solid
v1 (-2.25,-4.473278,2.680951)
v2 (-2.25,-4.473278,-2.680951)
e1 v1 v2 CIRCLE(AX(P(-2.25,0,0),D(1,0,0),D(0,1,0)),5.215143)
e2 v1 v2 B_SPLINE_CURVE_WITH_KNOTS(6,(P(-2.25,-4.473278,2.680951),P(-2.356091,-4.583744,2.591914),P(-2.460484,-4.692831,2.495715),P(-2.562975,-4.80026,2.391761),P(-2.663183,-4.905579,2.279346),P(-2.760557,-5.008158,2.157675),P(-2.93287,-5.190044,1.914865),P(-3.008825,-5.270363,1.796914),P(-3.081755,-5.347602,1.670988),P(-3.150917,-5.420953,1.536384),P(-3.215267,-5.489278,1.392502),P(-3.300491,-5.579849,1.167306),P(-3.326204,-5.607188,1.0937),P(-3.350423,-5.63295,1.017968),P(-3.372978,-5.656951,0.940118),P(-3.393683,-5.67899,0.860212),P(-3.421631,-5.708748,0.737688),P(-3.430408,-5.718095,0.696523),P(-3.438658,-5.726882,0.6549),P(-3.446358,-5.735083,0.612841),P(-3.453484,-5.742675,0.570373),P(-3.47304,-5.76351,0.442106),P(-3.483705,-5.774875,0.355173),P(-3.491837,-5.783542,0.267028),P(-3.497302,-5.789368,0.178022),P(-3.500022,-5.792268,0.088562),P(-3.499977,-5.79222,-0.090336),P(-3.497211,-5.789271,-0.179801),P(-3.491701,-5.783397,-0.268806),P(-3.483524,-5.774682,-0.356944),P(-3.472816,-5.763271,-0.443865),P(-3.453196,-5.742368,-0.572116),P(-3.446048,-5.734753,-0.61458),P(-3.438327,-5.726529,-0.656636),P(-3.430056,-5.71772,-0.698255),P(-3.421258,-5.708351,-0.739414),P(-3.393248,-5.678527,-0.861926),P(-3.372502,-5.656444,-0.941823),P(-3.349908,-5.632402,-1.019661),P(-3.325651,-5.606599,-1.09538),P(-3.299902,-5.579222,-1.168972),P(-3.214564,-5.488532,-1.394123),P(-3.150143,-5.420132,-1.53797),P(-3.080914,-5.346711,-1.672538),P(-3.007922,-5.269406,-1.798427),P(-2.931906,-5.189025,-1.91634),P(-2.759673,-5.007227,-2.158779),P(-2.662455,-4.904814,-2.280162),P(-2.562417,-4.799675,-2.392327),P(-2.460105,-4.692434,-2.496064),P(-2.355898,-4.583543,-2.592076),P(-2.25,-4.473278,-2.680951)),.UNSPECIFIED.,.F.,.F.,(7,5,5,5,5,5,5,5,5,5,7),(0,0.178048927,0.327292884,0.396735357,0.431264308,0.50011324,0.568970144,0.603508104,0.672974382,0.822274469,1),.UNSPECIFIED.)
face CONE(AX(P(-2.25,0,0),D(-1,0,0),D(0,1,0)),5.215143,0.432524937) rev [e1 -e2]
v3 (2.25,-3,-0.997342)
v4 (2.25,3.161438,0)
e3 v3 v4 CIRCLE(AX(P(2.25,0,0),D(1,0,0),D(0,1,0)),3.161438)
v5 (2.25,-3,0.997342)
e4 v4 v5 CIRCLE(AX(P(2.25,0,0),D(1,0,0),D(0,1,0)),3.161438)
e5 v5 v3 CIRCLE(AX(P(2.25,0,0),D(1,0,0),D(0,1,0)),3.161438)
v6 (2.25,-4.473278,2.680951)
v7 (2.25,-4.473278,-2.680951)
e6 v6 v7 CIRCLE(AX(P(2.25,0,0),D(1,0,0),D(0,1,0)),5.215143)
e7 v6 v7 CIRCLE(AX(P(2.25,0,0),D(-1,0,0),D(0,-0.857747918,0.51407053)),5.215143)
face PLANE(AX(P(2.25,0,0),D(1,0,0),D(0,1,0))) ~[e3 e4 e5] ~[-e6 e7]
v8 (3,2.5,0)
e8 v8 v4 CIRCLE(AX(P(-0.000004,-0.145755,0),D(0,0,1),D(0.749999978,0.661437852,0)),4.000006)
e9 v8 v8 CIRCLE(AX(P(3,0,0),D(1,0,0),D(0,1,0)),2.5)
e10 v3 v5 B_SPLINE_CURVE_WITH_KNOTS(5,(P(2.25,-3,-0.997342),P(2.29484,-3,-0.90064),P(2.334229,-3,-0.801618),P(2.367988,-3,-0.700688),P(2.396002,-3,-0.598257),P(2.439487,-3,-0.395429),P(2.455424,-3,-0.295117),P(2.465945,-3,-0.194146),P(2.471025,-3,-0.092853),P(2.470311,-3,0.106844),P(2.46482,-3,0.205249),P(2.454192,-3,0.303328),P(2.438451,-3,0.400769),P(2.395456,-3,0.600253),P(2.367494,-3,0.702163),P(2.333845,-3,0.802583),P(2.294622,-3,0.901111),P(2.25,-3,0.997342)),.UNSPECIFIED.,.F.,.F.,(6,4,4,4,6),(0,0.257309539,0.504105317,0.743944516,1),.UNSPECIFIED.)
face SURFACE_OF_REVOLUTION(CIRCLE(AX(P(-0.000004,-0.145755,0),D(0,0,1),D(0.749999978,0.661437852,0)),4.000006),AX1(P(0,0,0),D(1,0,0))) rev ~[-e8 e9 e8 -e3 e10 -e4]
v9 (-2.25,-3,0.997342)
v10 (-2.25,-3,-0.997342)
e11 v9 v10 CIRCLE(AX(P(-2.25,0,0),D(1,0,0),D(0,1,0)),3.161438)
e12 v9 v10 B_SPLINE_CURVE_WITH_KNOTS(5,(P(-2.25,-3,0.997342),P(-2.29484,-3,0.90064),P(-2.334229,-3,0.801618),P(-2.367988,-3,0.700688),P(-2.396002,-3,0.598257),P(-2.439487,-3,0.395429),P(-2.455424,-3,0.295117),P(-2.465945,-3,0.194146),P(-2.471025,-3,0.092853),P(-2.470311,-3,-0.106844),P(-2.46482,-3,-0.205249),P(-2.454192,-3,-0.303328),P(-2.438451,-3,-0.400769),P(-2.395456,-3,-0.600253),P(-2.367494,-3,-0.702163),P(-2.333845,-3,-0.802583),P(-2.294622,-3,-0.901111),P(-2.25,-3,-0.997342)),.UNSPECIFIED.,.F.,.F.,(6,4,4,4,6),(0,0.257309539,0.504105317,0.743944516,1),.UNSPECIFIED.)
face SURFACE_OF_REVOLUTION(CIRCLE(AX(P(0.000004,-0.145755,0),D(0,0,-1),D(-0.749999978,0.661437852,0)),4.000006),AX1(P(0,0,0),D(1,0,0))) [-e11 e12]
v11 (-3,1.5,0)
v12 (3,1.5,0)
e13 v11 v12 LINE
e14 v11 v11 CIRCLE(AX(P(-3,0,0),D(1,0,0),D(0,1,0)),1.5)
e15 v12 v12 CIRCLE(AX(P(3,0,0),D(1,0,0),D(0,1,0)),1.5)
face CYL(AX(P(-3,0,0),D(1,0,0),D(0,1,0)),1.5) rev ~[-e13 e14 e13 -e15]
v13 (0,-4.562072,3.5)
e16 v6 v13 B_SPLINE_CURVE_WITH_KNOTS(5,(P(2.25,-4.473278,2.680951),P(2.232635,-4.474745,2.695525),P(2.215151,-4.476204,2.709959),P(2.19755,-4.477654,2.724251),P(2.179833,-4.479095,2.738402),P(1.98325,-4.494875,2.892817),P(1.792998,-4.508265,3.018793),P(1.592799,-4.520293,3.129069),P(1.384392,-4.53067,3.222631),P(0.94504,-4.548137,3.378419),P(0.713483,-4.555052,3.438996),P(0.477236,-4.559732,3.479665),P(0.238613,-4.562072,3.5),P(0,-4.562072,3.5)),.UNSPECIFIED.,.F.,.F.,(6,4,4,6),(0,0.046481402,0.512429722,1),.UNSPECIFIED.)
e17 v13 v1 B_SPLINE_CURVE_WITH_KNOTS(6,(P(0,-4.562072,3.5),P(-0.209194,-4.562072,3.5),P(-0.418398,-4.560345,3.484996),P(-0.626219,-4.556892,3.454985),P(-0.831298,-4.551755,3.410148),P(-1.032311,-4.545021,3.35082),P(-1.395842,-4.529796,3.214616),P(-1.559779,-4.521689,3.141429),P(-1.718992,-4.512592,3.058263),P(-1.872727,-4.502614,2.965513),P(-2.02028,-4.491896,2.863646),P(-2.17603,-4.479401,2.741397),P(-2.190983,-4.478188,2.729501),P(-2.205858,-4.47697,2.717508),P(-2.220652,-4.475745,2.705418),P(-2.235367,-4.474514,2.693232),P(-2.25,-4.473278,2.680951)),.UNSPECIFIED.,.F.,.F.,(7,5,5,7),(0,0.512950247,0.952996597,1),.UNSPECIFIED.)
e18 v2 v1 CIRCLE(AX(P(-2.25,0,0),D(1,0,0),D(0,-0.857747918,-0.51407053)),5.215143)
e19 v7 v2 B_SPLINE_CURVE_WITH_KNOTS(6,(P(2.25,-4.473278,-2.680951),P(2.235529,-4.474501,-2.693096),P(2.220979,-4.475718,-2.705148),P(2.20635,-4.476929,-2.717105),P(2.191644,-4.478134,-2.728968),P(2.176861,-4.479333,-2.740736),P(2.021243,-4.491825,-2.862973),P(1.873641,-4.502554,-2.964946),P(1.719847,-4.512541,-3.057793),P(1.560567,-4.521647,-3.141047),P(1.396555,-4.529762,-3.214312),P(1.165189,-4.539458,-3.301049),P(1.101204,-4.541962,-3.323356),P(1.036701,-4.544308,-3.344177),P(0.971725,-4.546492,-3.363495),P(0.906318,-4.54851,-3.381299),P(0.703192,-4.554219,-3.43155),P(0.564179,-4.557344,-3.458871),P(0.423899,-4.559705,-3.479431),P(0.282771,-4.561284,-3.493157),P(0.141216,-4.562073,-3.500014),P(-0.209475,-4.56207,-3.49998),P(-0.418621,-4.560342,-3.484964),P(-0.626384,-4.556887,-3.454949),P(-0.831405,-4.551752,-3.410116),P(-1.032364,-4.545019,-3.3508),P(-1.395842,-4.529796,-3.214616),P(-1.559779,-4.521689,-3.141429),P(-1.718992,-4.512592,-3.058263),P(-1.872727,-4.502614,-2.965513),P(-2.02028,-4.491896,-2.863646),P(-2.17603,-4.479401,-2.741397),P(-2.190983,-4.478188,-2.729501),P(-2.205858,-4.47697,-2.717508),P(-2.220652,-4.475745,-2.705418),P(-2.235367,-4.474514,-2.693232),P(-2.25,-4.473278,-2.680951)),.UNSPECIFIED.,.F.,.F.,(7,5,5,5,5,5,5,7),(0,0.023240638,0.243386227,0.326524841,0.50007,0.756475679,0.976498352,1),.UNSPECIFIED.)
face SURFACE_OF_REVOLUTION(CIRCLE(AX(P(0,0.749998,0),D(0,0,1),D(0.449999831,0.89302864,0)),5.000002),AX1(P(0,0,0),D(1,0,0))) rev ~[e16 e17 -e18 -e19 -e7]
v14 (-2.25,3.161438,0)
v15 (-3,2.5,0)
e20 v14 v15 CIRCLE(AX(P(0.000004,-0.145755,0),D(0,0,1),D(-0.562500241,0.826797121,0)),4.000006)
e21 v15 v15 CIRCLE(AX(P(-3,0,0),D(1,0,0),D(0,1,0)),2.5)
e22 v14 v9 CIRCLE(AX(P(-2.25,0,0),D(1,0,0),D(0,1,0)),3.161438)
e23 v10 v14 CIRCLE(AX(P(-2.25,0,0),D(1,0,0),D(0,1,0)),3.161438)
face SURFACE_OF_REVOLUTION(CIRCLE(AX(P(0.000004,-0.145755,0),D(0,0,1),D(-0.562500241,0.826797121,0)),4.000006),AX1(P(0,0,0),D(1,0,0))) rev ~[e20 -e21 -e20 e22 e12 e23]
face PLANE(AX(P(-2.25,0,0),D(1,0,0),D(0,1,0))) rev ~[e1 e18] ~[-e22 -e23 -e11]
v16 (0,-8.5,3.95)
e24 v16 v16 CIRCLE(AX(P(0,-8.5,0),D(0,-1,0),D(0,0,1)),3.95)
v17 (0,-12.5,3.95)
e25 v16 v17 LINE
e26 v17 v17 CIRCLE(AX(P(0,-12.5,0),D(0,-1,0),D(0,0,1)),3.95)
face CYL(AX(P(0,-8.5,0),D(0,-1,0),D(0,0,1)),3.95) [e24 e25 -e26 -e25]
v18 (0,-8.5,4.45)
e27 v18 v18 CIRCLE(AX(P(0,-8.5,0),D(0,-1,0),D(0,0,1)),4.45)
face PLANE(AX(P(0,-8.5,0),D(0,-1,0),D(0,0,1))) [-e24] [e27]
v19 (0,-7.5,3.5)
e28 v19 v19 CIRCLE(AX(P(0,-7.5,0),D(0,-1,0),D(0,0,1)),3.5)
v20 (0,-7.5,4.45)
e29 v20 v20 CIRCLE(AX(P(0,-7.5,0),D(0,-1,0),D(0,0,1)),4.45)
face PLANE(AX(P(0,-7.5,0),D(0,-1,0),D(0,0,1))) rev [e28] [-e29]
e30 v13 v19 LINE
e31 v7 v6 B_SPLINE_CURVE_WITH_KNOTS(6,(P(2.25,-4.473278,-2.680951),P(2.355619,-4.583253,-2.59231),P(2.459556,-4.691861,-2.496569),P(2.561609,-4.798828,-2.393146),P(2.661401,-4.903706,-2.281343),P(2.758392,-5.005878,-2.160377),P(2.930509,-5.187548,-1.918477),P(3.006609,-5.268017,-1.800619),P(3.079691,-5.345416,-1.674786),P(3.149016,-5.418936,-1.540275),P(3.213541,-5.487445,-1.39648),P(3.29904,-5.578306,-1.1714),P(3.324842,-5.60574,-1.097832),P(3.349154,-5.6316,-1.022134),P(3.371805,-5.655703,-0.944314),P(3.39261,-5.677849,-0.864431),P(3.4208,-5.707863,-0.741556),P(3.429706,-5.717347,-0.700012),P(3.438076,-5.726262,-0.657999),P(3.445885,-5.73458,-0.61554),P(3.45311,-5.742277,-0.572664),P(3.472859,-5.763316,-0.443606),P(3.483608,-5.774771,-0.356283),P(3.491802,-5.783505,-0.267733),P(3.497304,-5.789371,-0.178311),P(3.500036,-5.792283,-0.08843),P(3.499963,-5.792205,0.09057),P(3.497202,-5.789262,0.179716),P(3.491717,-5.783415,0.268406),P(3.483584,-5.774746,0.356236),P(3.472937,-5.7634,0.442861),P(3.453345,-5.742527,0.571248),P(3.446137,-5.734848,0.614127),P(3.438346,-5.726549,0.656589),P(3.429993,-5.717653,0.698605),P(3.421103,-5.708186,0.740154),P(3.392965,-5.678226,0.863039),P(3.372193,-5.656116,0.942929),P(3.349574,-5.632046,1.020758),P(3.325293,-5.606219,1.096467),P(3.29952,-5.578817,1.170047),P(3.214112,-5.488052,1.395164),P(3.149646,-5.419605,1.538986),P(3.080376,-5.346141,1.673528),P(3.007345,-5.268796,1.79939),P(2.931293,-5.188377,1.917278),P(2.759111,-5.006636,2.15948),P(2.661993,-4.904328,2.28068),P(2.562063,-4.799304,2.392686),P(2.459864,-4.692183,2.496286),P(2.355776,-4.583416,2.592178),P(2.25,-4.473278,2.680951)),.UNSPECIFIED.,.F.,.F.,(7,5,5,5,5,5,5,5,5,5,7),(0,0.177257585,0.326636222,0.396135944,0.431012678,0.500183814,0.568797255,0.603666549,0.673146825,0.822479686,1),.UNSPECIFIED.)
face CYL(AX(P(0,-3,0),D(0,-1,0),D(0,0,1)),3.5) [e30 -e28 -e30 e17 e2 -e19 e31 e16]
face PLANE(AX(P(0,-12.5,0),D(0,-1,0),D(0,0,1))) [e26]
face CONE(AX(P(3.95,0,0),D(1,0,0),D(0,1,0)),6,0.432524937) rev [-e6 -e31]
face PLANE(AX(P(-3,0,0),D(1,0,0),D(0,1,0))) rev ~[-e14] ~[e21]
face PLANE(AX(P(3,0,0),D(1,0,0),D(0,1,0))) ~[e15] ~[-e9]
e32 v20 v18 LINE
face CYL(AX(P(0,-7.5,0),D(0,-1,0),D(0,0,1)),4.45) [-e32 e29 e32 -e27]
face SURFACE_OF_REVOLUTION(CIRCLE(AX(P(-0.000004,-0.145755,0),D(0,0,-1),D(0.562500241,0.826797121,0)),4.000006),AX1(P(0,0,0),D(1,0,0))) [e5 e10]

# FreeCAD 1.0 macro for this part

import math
import FreeCAD as App
import Part
import Sketcher

doc = App.newDocument("Part")
body = doc.addObject("PartDesign::Body", "Body")

sketch1 = doc.addObject("Sketcher::SketchObject", "Sketch")
body.addObject(sketch1)
sketch1.AttachmentSupport = (doc.XY_Plane, [""])
sketch1.MapMode = "FlatFace"
sketch1.addGeometry(Part.LineSegment(App.Vector(-3, 2.5, 0), App.Vector(-3, 1.5, 0)), False)
sketch1.addGeometry(Part.LineSegment(App.Vector(-3, 1.5, 0), App.Vector(3, 1.5, 0)), False)
sketch1.addGeometry(Part.LineSegment(App.Vector(3, 1.5, 0), App.Vector(3, 2.5, 0)), False)
sketch1.addGeometry(Part.ArcOfCircle(Part.Circle(App.Vector(-0.000004, -0.145755, 0), App.Vector(0, 0, 1), 4.000006), math.radians(41.409624), math.radians(55.771117)), False)
sketch1.addGeometry(Part.LineSegment(App.Vector(2.25, 3.161438, 0), App.Vector(2.25, 5.215143, 0)), False)
sketch1.addGeometry(Part.ArcOfCircle(Part.Circle(App.Vector(0, 0.749998, 0), App.Vector(0, 0, 1), 5.000002), math.radians(63.256327), math.radians(116.743673)), False)
sketch1.addGeometry(Part.LineSegment(App.Vector(-2.25, 5.215143, 0), App.Vector(-2.25, 3.161438, 0)), False)
sketch1.addGeometry(Part.ArcOfCircle(Part.Circle(App.Vector(0.000004, -0.145755, 0), App.Vector(0, 0, 1), 4.000006), math.radians(124.228883), math.radians(138.590376)), False)
sketch1.addConstraint(Sketcher.Constraint("Coincident", 0, 2, 1, 1))
sketch1.addConstraint(Sketcher.Constraint("Coincident", 1, 2, 2, 1))
sketch1.addConstraint(Sketcher.Constraint("Coincident", 2, 2, 3, 1))
sketch1.addConstraint(Sketcher.Constraint("Coincident", 3, 2, 4, 1))
sketch1.addConstraint(Sketcher.Constraint("Coincident", 4, 2, 5, 1))
sketch1.addConstraint(Sketcher.Constraint("Coincident", 5, 2, 6, 1))
sketch1.addConstraint(Sketcher.Constraint("Coincident", 6, 2, 7, 1))
sketch1.addConstraint(Sketcher.Constraint("Coincident", 7, 2, 0, 1))
sketch1.addConstraint(Sketcher.Constraint("Vertical", 0))
sketch1.addConstraint(Sketcher.Constraint("Horizontal", 1))
sketch1.addConstraint(Sketcher.Constraint("Vertical", 2))
sketch1.addConstraint(Sketcher.Constraint("Vertical", 4))
sketch1.addConstraint(Sketcher.Constraint("Vertical", 6))
sketch1.addConstraint(Sketcher.Constraint("Coincident", 7, 3, 3, 3))
sketch1.addConstraint(Sketcher.Constraint("Equal", 3, 7))
sketch1.addConstraint(Sketcher.Constraint("Symmetric", 4, 2, 5, 2, -2))
sketch1.addConstraint(Sketcher.Constraint("Symmetric", 2, 2, 7, 2, -2))
sketch1.addConstraint(Sketcher.Constraint("Radius", 5, 5.000002))
sketch1.addConstraint(Sketcher.Constraint("DistanceX", 1, 1, 1, 2, 6.0))
sketch1.addConstraint(Sketcher.Constraint("DistanceY", 0, 2, 0, 1, 1.0))
sketch1.addConstraint(Sketcher.Constraint("DistanceY", -1, 1, 0, 2, 1.5))
sketch1.addConstraint(Sketcher.Constraint("DistanceX", 5, 2, 4, 2, 4.5))
sketch1.addConstraint(Sketcher.Constraint("DistanceY", -1, 1, 5, 3, 0.749998))
sketch1.addConstraint(Sketcher.Constraint("Radius", 3, 4.000006))
revolution = doc.addObject("PartDesign::Revolution", "Revolution")
body.addObject(revolution)
revolution.Profile = sketch1
revolution.ReferenceAxis = (sketch1, ["H_Axis"])
revolution.Angle = 360

sketch2 = doc.addObject("Sketcher::SketchObject", "Sketch001")
body.addObject(sketch2)
sketch2.AttachmentSupport = (doc.YZ_Plane, [""])
sketch2.MapMode = "FlatFace"
sketch2.addGeometry(Part.LineSegment(App.Vector(-12.5, 3.95, 0), App.Vector(-12.5, 0, 0)), False)
sketch2.addGeometry(Part.LineSegment(App.Vector(-12.5, 0, 0), App.Vector(-3, 0, 0)), False)
sketch2.addGeometry(Part.LineSegment(App.Vector(-3, 0, 0), App.Vector(-3, 3.5, 0)), False)
sketch2.addGeometry(Part.LineSegment(App.Vector(-3, 3.5, 0), App.Vector(-7.5, 3.5, 0)), False)
sketch2.addGeometry(Part.LineSegment(App.Vector(-7.5, 3.5, 0), App.Vector(-7.5, 4.45, 0)), False)
sketch2.addGeometry(Part.LineSegment(App.Vector(-7.5, 4.45, 0), App.Vector(-8.5, 4.45, 0)), False)
sketch2.addGeometry(Part.LineSegment(App.Vector(-8.5, 4.45, 0), App.Vector(-8.5, 3.95, 0)), False)
sketch2.addGeometry(Part.LineSegment(App.Vector(-8.5, 3.95, 0), App.Vector(-12.5, 3.95, 0)), False)
sketch2.addConstraint(Sketcher.Constraint("Coincident", 0, 2, 1, 1))
sketch2.addConstraint(Sketcher.Constraint("Coincident", 1, 2, 2, 1))
sketch2.addConstraint(Sketcher.Constraint("Coincident", 2, 2, 3, 1))
sketch2.addConstraint(Sketcher.Constraint("Coincident", 3, 2, 4, 1))
sketch2.addConstraint(Sketcher.Constraint("Coincident", 4, 2, 5, 1))
sketch2.addConstraint(Sketcher.Constraint("Coincident", 5, 2, 6, 1))
sketch2.addConstraint(Sketcher.Constraint("Coincident", 6, 2, 7, 1))
sketch2.addConstraint(Sketcher.Constraint("Coincident", 7, 2, 0, 1))
sketch2.addConstraint(Sketcher.Constraint("Vertical", 0))
sketch2.addConstraint(Sketcher.Constraint("Horizontal", 1))
sketch2.addConstraint(Sketcher.Constraint("Vertical", 2))
sketch2.addConstraint(Sketcher.Constraint("Horizontal", 3))
sketch2.addConstraint(Sketcher.Constraint("Vertical", 4))
sketch2.addConstraint(Sketcher.Constraint("Horizontal", 5))
sketch2.addConstraint(Sketcher.Constraint("Vertical", 6))
sketch2.addConstraint(Sketcher.Constraint("Horizontal", 7))
sketch2.addConstraint(Sketcher.Constraint("PointOnObject", 0, 2, -1))
sketch2.addConstraint(Sketcher.Constraint("DistanceX", 5, 2, 5, 1, 1.0))
sketch2.addConstraint(Sketcher.Constraint("DistanceX", 7, 2, 7, 1, 4.0))
sketch2.addConstraint(Sketcher.Constraint("DistanceX", 1, 1, 1, 2, 9.5))
sketch2.addConstraint(Sketcher.Constraint("DistanceY", 2, 1, 2, 2, 3.5))
sketch2.addConstraint(Sketcher.Constraint("DistanceY", 6, 2, 6, 1, 0.5))
sketch2.addConstraint(Sketcher.Constraint("DistanceX", 1, 2, -1, 1, 3.0))
sketch2.addConstraint(Sketcher.Constraint("DistanceY", 0, 2, 0, 1, 3.95))
revolution2 = doc.addObject("PartDesign::Revolution", "Revolution001")
body.addObject(revolution2)
revolution2.Profile = sketch2
revolution2.ReferenceAxis = (sketch2, ["H_Axis"])
revolution2.Angle = 360

sketch3 = doc.addObject("Sketcher::SketchObject", "Sketch002")
body.addObject(sketch3)
sketch3.AttachmentSupport = (doc.XY_Plane, [""])
sketch3.MapMode = "FlatFace"
sketch3.addGeometry(Part.LineSegment(App.Vector(3, 2.5, 0), App.Vector(3, 1.5, 0)), False)
sketch3.addGeometry(Part.LineSegment(App.Vector(3, 1.5, 0), App.Vector(5, 1.5, 0)), False)
sketch3.addGeometry(Part.LineSegment(App.Vector(5, 1.5, 0), App.Vector(5, 6, 0)), False)
sketch3.addGeometry(Part.LineSegment(App.Vector(5, 6, 0), App.Vector(3.95, 6, 0)), False)
sketch3.addGeometry(Part.LineSegment(App.Vector(3.95, 6, 0), App.Vector(2.25, 5.215143, 0)), False)
sketch3.addGeometry(Part.LineSegment(App.Vector(2.25, 5.215143, 0), App.Vector(2.25, 3.161438, 0)), False)
sketch3.addGeometry(Part.ArcOfCircle(Part.Circle(App.Vector(-0.000004, -0.145755, 0), App.Vector(0, 0, 1), 4.000006), math.radians(41.409624), math.radians(55.771117)), False)
sketch3.addGeometry(Part.LineSegment(App.Vector(-5, 1.5, 0), App.Vector(-3, 1.5, 0)), False)
sketch3.addGeometry(Part.LineSegment(App.Vector(-3, 1.5, 0), App.Vector(-3, 2.5, 0)), False)
sketch3.addGeometry(Part.ArcOfCircle(Part.Circle(App.Vector(0.000004, -0.145755, 0), App.Vector(0, 0, 1), 4.000006), math.radians(124.228883), math.radians(138.590376)), False)
sketch3.addGeometry(Part.LineSegment(App.Vector(-2.25, 3.161438, 0), App.Vector(-2.25, 5.215143, 0)), False)
sketch3.addGeometry(Part.LineSegment(App.Vector(-2.25, 5.215143, 0), App.Vector(-3.95, 6, 0)), False)
sketch3.addGeometry(Part.LineSegment(App.Vector(-3.95, 6, 0), App.Vector(-5, 6, 0)), False)
sketch3.addGeometry(Part.LineSegment(App.Vector(-5, 6, 0), App.Vector(-5, 1.5, 0)), False)
sketch3.addConstraint(Sketcher.Constraint("Coincident", 0, 2, 1, 1))
sketch3.addConstraint(Sketcher.Constraint("Coincident", 1, 2, 2, 1))
sketch3.addConstraint(Sketcher.Constraint("Coincident", 2, 2, 3, 1))
sketch3.addConstraint(Sketcher.Constraint("Coincident", 3, 2, 4, 1))
sketch3.addConstraint(Sketcher.Constraint("Coincident", 4, 2, 5, 1))
sketch3.addConstraint(Sketcher.Constraint("Coincident", 5, 2, 6, 2))
sketch3.addConstraint(Sketcher.Constraint("Coincident", 6, 1, 0, 1))
sketch3.addConstraint(Sketcher.Constraint("Coincident", 7, 2, 8, 1))
sketch3.addConstraint(Sketcher.Constraint("Coincident", 8, 2, 9, 2))
sketch3.addConstraint(Sketcher.Constraint("Coincident", 9, 1, 10, 1))
sketch3.addConstraint(Sketcher.Constraint("Coincident", 10, 2, 11, 1))
sketch3.addConstraint(Sketcher.Constraint("Coincident", 11, 2, 12, 1))
sketch3.addConstraint(Sketcher.Constraint("Coincident", 12, 2, 13, 1))
sketch3.addConstraint(Sketcher.Constraint("Coincident", 13, 2, 7, 1))
sketch3.addConstraint(Sketcher.Constraint("Vertical", 0))
sketch3.addConstraint(Sketcher.Constraint("Horizontal", 1))
sketch3.addConstraint(Sketcher.Constraint("Vertical", 2))
sketch3.addConstraint(Sketcher.Constraint("Horizontal", 3))
sketch3.addConstraint(Sketcher.Constraint("Vertical", 5))
sketch3.addConstraint(Sketcher.Constraint("Horizontal", 7))
sketch3.addConstraint(Sketcher.Constraint("Vertical", 8))
sketch3.addConstraint(Sketcher.Constraint("Vertical", 10))
sketch3.addConstraint(Sketcher.Constraint("Horizontal", 12))
sketch3.addConstraint(Sketcher.Constraint("Vertical", 13))
sketch3.addConstraint(Sketcher.Constraint("Coincident", 9, 3, 6, 3))
sketch3.addConstraint(Sketcher.Constraint("Equal", 6, 9))
sketch3.addConstraint(Sketcher.Constraint("Symmetric", 0, 2, 7, 2, -2))
sketch3.addConstraint(Sketcher.Constraint("Symmetric", 5, 2, 9, 1, -2))
sketch3.addConstraint(Sketcher.Constraint("Symmetric", 3, 2, 11, 2, -2))
sketch3.addConstraint(Sketcher.Constraint("Horizontal", 4, 2, 10, 2))
sketch3.addConstraint(Sketcher.Constraint("Equal", 1, 7))
sketch3.addConstraint(Sketcher.Constraint("DistanceX", 1, 1, 1, 2, 2.0))
sketch3.addConstraint(Sketcher.Constraint("DistanceY", 0, 2, 0, 1, 1.0))
sketch3.addConstraint(Sketcher.Constraint("DistanceY", 2, 1, 2, 2, 4.5))
sketch3.addConstraint(Sketcher.Constraint("DistanceX", -1, 1, 0, 2, 3.0))
sketch3.addConstraint(Sketcher.Constraint("DistanceY", -1, 1, 2, 2, 6.0))
sketch3.addConstraint(Sketcher.Constraint("DistanceX", 3, 2, 3, 1, 1.05))
sketch3.addConstraint(Sketcher.Constraint("DistanceX", 4, 2, 3, 2, 1.7))
sketch3.addConstraint(Sketcher.Constraint("Radius", 6, 4.000006))
sketch3.addConstraint(Sketcher.Constraint("DistanceY", 9, 3, 4, 2, 5.360898))
groove = doc.addObject("PartDesign::Groove", "Groove")
body.addObject(groove)
groove.Profile = sketch3
groove.ReferenceAxis = (sketch3, ["H_Axis"])
groove.Angle = 360

doc.recompute()
